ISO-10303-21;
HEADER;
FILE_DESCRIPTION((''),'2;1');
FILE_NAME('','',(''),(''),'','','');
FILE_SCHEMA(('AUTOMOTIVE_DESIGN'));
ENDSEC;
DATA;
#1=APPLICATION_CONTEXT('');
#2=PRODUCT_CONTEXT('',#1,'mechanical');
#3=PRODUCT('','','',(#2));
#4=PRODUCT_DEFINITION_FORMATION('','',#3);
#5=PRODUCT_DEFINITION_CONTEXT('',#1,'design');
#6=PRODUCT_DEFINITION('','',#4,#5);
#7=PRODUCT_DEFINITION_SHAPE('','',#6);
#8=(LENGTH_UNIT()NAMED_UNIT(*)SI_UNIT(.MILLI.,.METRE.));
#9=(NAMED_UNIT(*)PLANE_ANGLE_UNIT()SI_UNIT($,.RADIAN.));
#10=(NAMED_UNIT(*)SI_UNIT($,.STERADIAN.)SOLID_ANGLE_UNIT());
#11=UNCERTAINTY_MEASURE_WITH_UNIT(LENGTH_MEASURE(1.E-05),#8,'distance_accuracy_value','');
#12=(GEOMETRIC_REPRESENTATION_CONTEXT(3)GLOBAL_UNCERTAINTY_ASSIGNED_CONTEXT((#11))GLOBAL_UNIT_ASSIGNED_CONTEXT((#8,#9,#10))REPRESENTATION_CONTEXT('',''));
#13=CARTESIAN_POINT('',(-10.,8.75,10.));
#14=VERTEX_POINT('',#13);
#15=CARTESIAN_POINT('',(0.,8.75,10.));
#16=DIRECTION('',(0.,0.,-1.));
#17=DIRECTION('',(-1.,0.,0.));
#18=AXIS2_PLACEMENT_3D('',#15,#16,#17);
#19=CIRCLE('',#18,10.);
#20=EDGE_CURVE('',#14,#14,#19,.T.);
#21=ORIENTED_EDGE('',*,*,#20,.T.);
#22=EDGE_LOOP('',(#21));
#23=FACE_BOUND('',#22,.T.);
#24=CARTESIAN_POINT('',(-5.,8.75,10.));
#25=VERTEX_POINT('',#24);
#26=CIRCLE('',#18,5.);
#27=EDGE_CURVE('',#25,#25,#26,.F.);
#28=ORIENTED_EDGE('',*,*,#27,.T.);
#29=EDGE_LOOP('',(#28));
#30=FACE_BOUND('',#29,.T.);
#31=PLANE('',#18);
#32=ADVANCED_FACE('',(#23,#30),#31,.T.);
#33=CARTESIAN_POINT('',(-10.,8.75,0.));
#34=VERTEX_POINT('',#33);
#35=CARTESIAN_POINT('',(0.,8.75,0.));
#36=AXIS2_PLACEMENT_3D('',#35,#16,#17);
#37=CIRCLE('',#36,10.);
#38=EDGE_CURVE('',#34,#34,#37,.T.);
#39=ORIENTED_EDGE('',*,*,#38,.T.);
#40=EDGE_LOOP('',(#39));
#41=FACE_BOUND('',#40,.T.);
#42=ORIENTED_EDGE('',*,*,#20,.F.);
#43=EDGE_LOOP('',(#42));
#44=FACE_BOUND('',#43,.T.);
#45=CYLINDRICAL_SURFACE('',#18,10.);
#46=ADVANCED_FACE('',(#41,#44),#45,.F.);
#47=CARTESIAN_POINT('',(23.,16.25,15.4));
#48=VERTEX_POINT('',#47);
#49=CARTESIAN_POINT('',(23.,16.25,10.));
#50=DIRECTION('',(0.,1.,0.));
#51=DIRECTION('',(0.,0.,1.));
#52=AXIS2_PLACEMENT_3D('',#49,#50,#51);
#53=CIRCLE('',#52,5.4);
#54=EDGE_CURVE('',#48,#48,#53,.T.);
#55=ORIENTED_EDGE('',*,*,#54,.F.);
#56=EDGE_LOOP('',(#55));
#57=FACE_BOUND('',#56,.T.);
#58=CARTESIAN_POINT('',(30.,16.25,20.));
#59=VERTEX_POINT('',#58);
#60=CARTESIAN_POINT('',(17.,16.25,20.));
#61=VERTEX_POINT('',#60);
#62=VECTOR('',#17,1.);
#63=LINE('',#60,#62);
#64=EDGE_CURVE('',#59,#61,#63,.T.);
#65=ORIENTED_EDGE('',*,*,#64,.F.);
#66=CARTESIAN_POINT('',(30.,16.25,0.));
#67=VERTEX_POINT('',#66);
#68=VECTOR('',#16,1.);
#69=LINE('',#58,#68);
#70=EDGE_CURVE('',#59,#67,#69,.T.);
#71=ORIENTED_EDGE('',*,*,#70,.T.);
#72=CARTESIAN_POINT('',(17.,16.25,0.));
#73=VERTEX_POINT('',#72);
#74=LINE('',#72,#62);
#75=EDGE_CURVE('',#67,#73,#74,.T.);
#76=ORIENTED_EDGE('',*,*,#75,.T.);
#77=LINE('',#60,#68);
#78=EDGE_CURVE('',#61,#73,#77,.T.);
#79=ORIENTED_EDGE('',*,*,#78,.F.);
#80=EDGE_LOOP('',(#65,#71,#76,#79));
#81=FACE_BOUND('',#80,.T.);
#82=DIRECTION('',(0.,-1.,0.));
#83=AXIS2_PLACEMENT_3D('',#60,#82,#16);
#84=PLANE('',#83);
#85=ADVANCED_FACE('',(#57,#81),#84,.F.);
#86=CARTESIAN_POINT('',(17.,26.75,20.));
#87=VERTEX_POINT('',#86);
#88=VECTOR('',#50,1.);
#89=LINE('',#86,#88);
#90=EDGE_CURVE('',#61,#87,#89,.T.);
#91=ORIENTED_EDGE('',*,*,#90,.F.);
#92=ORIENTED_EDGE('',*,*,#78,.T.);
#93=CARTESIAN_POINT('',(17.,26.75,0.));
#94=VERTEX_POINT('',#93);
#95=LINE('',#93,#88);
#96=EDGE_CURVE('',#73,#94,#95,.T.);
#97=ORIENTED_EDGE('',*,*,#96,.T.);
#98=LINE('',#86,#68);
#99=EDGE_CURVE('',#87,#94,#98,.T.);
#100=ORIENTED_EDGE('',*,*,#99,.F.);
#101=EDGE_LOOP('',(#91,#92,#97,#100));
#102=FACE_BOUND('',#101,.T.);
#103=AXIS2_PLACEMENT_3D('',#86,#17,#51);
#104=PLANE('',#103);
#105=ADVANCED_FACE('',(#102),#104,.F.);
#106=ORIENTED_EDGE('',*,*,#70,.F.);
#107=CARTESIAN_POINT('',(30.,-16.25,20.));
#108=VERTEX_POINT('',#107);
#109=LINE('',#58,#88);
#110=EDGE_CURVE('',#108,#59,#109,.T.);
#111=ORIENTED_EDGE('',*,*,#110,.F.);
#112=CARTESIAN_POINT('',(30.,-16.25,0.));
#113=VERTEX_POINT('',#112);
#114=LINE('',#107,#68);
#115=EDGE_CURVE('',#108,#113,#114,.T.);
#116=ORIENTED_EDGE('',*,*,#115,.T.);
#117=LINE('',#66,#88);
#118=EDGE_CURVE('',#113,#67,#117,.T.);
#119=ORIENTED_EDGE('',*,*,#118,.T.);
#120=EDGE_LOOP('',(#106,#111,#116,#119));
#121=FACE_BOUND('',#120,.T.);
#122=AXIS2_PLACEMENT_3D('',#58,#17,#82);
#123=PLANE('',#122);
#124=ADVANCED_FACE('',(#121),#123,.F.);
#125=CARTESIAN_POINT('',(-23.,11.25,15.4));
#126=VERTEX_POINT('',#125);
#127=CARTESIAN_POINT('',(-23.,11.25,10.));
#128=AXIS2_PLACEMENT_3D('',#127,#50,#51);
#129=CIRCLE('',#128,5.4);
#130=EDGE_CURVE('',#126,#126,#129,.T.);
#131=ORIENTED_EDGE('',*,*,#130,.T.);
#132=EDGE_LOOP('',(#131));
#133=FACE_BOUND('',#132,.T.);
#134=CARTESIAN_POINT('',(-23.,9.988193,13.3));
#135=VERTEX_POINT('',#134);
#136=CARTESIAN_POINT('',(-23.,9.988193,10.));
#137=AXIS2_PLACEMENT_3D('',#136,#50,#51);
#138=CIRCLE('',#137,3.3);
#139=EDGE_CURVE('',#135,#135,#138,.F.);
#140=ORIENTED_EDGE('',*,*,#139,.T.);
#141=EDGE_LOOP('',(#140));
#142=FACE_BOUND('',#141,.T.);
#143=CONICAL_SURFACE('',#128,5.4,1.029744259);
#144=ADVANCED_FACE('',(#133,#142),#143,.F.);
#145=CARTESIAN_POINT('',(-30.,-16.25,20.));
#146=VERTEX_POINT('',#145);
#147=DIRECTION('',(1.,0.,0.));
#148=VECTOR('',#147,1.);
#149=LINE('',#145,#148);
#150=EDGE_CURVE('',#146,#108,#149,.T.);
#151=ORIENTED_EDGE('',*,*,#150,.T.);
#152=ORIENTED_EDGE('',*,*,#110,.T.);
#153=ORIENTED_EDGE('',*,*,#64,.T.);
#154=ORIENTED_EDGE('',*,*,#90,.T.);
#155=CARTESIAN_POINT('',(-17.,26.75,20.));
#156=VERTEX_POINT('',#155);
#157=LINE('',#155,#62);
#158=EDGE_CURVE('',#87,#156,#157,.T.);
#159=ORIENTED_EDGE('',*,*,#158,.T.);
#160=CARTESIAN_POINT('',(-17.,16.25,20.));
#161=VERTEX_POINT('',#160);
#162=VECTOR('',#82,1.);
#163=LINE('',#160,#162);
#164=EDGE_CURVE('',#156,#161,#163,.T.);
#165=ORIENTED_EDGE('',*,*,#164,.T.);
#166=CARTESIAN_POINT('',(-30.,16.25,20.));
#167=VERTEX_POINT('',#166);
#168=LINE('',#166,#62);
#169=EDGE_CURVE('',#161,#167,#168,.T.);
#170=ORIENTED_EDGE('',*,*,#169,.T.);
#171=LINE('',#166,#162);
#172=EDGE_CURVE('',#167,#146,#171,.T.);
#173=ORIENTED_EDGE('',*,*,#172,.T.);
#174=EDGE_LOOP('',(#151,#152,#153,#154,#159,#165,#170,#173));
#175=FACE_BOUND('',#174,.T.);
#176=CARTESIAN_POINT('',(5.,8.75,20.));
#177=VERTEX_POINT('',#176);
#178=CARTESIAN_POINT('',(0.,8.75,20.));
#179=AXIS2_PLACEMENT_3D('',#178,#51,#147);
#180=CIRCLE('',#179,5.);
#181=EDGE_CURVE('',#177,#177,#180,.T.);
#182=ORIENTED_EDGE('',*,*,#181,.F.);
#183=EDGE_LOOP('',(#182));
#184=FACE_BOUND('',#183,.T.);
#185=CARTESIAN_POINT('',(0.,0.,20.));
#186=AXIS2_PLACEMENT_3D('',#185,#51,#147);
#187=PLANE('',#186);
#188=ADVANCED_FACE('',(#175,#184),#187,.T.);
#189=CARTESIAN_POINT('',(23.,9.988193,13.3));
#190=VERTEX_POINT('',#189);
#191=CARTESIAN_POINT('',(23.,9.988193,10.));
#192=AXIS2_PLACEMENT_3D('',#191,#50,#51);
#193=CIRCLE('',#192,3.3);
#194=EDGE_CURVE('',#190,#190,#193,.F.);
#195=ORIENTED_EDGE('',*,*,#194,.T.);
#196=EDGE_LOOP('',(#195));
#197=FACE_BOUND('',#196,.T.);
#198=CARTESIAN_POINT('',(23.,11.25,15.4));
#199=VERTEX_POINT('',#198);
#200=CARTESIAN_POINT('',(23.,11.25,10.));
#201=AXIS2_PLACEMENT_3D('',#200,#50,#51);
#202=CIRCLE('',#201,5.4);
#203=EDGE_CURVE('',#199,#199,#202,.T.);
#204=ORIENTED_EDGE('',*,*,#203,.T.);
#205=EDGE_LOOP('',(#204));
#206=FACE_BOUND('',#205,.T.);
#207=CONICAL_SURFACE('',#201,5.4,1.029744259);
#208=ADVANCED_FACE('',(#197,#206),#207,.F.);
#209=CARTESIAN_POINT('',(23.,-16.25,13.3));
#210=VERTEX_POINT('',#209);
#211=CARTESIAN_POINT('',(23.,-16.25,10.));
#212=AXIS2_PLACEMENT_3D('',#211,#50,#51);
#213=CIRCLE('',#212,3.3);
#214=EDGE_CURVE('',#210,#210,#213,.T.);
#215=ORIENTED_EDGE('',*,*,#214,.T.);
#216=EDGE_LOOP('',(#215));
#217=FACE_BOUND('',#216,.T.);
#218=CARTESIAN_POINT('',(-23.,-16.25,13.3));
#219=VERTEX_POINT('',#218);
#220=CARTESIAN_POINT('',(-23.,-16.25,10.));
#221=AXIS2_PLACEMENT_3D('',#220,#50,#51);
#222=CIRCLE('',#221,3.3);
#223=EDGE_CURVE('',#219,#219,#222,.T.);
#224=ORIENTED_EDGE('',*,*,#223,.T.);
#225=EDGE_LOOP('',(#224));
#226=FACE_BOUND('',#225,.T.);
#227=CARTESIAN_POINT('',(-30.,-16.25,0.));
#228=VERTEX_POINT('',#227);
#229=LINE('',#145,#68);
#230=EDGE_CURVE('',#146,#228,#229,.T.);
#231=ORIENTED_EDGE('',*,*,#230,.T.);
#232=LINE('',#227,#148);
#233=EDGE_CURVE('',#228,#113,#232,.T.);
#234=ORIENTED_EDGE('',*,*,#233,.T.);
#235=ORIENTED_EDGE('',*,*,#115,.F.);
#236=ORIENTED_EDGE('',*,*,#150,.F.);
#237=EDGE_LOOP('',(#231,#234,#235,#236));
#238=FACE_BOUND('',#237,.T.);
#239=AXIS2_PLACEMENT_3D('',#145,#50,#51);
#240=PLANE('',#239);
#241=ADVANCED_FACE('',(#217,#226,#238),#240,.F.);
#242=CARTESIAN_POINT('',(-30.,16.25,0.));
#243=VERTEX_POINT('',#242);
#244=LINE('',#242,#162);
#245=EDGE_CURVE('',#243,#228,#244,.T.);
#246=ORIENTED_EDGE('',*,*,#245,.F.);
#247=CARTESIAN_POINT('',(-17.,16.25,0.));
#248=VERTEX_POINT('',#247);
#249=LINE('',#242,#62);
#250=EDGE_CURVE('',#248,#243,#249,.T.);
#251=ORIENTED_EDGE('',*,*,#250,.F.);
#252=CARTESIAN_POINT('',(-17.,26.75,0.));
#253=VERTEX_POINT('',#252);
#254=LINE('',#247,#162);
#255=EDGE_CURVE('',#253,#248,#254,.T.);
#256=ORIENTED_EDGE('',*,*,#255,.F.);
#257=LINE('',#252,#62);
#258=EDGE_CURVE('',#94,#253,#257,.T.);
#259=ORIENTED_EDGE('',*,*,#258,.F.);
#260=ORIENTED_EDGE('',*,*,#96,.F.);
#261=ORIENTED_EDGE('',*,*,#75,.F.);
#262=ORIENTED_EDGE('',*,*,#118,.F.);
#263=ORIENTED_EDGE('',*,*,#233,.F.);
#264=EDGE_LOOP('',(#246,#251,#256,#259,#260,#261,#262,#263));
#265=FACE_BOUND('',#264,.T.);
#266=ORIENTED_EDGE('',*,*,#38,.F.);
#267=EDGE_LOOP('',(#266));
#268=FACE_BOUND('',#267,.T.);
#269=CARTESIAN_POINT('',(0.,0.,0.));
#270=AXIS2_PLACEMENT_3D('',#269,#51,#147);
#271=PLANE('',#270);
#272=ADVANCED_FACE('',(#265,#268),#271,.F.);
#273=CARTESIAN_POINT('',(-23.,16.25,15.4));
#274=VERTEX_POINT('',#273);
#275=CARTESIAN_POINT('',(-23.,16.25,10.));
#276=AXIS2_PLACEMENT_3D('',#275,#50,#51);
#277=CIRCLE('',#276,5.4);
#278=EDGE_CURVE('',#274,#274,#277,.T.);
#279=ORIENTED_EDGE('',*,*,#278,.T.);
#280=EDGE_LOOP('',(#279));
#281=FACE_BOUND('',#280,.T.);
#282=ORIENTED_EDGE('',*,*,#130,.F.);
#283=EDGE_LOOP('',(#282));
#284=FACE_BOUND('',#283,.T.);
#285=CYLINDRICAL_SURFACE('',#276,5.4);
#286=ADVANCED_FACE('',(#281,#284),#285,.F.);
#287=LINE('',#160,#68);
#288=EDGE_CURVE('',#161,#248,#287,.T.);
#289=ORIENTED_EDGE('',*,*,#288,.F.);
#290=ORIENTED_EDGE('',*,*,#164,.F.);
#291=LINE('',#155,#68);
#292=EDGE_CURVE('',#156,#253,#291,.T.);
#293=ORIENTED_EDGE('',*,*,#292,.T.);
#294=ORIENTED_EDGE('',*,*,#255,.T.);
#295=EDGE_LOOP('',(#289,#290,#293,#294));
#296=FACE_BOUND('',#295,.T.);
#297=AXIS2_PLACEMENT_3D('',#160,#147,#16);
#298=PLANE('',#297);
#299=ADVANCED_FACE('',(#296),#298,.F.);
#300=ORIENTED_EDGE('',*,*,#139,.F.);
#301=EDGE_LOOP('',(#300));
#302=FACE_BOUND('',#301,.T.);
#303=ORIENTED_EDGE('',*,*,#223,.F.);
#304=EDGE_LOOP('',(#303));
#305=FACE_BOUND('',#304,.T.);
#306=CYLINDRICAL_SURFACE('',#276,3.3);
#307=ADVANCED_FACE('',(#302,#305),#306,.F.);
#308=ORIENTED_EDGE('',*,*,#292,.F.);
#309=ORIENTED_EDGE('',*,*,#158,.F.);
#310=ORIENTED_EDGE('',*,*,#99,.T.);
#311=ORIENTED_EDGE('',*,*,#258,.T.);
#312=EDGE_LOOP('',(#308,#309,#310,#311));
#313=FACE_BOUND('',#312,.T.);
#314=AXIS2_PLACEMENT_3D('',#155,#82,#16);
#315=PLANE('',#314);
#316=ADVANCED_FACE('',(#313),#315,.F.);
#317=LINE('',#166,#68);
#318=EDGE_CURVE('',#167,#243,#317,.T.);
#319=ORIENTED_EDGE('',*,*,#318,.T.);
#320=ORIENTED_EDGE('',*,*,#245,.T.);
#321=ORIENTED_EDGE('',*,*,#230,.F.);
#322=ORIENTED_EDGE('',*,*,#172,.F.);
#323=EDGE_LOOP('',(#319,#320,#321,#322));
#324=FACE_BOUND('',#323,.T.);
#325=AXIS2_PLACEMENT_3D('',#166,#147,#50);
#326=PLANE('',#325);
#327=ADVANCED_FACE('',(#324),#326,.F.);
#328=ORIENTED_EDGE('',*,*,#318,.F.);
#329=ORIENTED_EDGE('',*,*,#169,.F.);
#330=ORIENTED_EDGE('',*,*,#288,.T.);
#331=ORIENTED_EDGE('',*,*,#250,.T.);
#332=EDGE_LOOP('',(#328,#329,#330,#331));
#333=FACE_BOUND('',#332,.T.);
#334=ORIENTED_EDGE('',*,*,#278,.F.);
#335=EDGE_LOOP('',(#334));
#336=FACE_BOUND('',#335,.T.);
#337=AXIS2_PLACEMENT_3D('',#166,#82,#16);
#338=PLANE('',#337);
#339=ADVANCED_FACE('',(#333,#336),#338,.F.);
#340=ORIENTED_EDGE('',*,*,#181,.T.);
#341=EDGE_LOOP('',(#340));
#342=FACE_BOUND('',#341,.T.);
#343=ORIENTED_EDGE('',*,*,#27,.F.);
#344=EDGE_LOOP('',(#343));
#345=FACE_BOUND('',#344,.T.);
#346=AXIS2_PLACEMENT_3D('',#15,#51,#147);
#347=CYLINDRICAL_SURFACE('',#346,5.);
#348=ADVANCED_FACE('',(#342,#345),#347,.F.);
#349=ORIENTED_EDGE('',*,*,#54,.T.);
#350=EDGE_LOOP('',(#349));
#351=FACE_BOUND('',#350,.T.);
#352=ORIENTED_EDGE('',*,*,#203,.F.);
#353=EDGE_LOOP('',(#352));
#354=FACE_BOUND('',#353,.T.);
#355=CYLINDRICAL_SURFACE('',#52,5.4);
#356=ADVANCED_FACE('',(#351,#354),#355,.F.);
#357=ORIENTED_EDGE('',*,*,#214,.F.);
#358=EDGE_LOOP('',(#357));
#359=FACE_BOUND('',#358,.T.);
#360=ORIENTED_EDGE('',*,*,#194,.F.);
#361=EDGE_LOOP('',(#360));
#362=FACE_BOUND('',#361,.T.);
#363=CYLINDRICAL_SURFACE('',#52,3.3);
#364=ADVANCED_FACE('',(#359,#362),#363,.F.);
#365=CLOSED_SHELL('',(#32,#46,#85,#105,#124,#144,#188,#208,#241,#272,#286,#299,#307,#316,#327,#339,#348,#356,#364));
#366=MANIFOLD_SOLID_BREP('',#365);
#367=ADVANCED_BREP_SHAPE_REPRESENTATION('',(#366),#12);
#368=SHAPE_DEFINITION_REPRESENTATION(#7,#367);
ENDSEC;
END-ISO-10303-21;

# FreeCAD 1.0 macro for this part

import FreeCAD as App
import Part
import Sketcher
Q = App.Units.Quantity


def add_polygon(sketch, points):
    """Adds a closed chain of lines whose ends are joined by coincident constraints."""
    first, n = sketch.GeometryCount, len(points)
    for a, b in zip(points, points[1:] + points[:1]):
        sketch.addGeometry(Part.LineSegment(App.Vector(*a, 0), App.Vector(*b, 0)), False)
    for i in range(n):
        sketch.addConstraint(Sketcher.Constraint("Coincident", first + i, 2, first + (i + 1) % n, 1))

doc = App.newDocument("Part")
body = doc.addObject("PartDesign::Body", "Body")

sketch1 = body.newObject("Sketcher::SketchObject", "Sketch")
sketch1.AttachmentSupport = (doc.getObject("XY_Plane"), [""])
sketch1.MapMode = "FlatFace"
add_polygon(sketch1, [(-17, 27), (-17, 16), (-30, 16), (-30, -16), (30, -16), (30, 16), (17, 16), (17, 27)])
sketch1.addConstraint(Sketcher.Constraint("Vertical", 0))
sketch1.addConstraint(Sketcher.Constraint("Horizontal", 1))
sketch1.addConstraint(Sketcher.Constraint("Vertical", 2))
sketch1.addConstraint(Sketcher.Constraint("Horizontal", 3))
sketch1.addConstraint(Sketcher.Constraint("Vertical", 4))
sketch1.addConstraint(Sketcher.Constraint("Horizontal", 5))
sketch1.addConstraint(Sketcher.Constraint("Vertical", 6))
sketch1.addConstraint(Sketcher.Constraint("Horizontal", 7))
sketch1.addConstraint(Sketcher.Constraint("Symmetric", 1, 2, 3, 2, -1, 1))
sketch1.addConstraint(Sketcher.Constraint("Symmetric", 0, 2, 5, 2, -2))
sketch1.addConstraint(Sketcher.Constraint("DistanceX", 1, 2, 1, 1, Q("13 mm")))
sketch1.addConstraint(Sketcher.Constraint("DistanceX", 3, 1, 3, 2, Q("60 mm")))
sketch1.addConstraint(Sketcher.Constraint("DistanceY", 0, 2, 0, 1, Q("10.5 mm")))
sketch1.addConstraint(Sketcher.Constraint("DistanceY", 2, 2, 2, 1, Q("32.5 mm")))
pad1 = body.newObject("PartDesign::Pad", "Pad")
pad1.Profile = sketch1
pad1.Length = 20

sketch2 = body.newObject("Sketcher::SketchObject", "Sketch001")
sketch2.AttachmentSupport = (doc.getObject("XY_Plane"), [""])
sketch2.MapMode = "FlatFace"
sketch2.AttachmentOffset = App.Placement(App.Vector(0, 0, 20), App.Rotation())
sketch2.addGeometry(Part.Circle(App.Vector(0, 9, 0), App.Vector(0, 0, 1), 5), False)
sketch2.addConstraint(Sketcher.Constraint("PointOnObject", 0, 3, -2))
sketch2.addConstraint(Sketcher.Constraint("Diameter", 0, Q("10 mm")))
sketch2.addConstraint(Sketcher.Constraint("DistanceY", -1, 1, 0, 3, Q("8.75 mm")))
pocket1 = body.newObject("PartDesign::Pocket", "Pocket")
pocket1.Profile = sketch2
pocket1.Length = 10

sketch3 = body.newObject("Sketcher::SketchObject", "Sketch002")
sketch3.AttachmentSupport = (doc.getObject("XY_Plane"), [""])
sketch3.MapMode = "FlatFace"
sketch3.addGeometry(Part.Circle(App.Vector(0, 9, 0), App.Vector(0, 0, 1), 10), False)
sketch3.addConstraint(Sketcher.Constraint("PointOnObject", 0, 3, -2))
sketch3.addConstraint(Sketcher.Constraint("Diameter", 0, Q("20 mm")))
sketch3.addConstraint(Sketcher.Constraint("DistanceY", -1, 1, 0, 3, Q("8.75 mm")))
pocket2 = body.newObject("PartDesign::Pocket", "Pocket001")
pocket2.Profile = sketch3
pocket2.Length = 10
pocket2.Reversed = True

sketch4 = body.newObject("Sketcher::SketchObject", "Sketch003")
sketch4.AttachmentSupport = (doc.getObject("XZ_Plane"), [""])
sketch4.MapMode = "FlatFace"
sketch4.AttachmentOffset = App.Placement(App.Vector(0, 0, -16.25), App.Rotation())
sketch4.addGeometry(Part.Circle(App.Vector(-23, 10, 0), App.Vector(0, 0, 1), 5), False)
sketch4.addGeometry(Part.Circle(App.Vector(23, 10, 0), App.Vector(0, 0, 1), 5), False)
sketch4.addConstraint(Sketcher.Constraint("Equal", 0, 1))
sketch4.addConstraint(Sketcher.Constraint("Symmetric", 0, 3, 1, 3, -2))
sketch4.addConstraint(Sketcher.Constraint("Diameter", 0, Q("10.8 mm")))
sketch4.addConstraint(Sketcher.Constraint("DistanceX", 0, 3, -1, 1, Q("23 mm")))
sketch4.addConstraint(Sketcher.Constraint("DistanceY", -1, 1, 0, 3, Q("10 mm")))
doc.recompute()
hole = body.newObject("PartDesign::Hole", "Hole")
hole.Profile = sketch4
hole.ThreadType = "None"
hole.Diameter = 10.8
hole.DepthType = "Dimension"
hole.Depth = 5
hole.DrillPoint = "Angled"
hole.DrillPointAngle = 118
hole.Reversed = True

sketch5 = body.newObject("Sketcher::SketchObject", "Sketch004")
sketch5.AttachmentSupport = (doc.getObject("XZ_Plane"), [""])
sketch5.MapMode = "FlatFace"
sketch5.AttachmentOffset = App.Placement(App.Vector(0, 0, -16.25), App.Rotation())
sketch5.addGeometry(Part.Circle(App.Vector(-23, 10, 0), App.Vector(0, 0, 1), 3.3), False)
sketch5.addGeometry(Part.Circle(App.Vector(23, 10, 0), App.Vector(0, 0, 1), 3.3), False)
sketch5.addConstraint(Sketcher.Constraint("Equal", 0, 1))
sketch5.addConstraint(Sketcher.Constraint("Symmetric", 0, 3, 1, 3, -2))
sketch5.addConstraint(Sketcher.Constraint("Diameter", 0, Q("6.6 mm")))
sketch5.addConstraint(Sketcher.Constraint("DistanceX", 0, 3, -1, 1, Q("23 mm")))
sketch5.addConstraint(Sketcher.Constraint("DistanceY", -1, 1, 0, 3, Q("10 mm")))
doc.recompute()
hole2 = body.newObject("PartDesign::Hole", "Hole001")
hole2.Profile = sketch5
hole2.ThreadType = "None"
hole2.Diameter = 6.6
hole2.DepthType = "ThroughAll"
hole2.Reversed = True

doc.recompute()
